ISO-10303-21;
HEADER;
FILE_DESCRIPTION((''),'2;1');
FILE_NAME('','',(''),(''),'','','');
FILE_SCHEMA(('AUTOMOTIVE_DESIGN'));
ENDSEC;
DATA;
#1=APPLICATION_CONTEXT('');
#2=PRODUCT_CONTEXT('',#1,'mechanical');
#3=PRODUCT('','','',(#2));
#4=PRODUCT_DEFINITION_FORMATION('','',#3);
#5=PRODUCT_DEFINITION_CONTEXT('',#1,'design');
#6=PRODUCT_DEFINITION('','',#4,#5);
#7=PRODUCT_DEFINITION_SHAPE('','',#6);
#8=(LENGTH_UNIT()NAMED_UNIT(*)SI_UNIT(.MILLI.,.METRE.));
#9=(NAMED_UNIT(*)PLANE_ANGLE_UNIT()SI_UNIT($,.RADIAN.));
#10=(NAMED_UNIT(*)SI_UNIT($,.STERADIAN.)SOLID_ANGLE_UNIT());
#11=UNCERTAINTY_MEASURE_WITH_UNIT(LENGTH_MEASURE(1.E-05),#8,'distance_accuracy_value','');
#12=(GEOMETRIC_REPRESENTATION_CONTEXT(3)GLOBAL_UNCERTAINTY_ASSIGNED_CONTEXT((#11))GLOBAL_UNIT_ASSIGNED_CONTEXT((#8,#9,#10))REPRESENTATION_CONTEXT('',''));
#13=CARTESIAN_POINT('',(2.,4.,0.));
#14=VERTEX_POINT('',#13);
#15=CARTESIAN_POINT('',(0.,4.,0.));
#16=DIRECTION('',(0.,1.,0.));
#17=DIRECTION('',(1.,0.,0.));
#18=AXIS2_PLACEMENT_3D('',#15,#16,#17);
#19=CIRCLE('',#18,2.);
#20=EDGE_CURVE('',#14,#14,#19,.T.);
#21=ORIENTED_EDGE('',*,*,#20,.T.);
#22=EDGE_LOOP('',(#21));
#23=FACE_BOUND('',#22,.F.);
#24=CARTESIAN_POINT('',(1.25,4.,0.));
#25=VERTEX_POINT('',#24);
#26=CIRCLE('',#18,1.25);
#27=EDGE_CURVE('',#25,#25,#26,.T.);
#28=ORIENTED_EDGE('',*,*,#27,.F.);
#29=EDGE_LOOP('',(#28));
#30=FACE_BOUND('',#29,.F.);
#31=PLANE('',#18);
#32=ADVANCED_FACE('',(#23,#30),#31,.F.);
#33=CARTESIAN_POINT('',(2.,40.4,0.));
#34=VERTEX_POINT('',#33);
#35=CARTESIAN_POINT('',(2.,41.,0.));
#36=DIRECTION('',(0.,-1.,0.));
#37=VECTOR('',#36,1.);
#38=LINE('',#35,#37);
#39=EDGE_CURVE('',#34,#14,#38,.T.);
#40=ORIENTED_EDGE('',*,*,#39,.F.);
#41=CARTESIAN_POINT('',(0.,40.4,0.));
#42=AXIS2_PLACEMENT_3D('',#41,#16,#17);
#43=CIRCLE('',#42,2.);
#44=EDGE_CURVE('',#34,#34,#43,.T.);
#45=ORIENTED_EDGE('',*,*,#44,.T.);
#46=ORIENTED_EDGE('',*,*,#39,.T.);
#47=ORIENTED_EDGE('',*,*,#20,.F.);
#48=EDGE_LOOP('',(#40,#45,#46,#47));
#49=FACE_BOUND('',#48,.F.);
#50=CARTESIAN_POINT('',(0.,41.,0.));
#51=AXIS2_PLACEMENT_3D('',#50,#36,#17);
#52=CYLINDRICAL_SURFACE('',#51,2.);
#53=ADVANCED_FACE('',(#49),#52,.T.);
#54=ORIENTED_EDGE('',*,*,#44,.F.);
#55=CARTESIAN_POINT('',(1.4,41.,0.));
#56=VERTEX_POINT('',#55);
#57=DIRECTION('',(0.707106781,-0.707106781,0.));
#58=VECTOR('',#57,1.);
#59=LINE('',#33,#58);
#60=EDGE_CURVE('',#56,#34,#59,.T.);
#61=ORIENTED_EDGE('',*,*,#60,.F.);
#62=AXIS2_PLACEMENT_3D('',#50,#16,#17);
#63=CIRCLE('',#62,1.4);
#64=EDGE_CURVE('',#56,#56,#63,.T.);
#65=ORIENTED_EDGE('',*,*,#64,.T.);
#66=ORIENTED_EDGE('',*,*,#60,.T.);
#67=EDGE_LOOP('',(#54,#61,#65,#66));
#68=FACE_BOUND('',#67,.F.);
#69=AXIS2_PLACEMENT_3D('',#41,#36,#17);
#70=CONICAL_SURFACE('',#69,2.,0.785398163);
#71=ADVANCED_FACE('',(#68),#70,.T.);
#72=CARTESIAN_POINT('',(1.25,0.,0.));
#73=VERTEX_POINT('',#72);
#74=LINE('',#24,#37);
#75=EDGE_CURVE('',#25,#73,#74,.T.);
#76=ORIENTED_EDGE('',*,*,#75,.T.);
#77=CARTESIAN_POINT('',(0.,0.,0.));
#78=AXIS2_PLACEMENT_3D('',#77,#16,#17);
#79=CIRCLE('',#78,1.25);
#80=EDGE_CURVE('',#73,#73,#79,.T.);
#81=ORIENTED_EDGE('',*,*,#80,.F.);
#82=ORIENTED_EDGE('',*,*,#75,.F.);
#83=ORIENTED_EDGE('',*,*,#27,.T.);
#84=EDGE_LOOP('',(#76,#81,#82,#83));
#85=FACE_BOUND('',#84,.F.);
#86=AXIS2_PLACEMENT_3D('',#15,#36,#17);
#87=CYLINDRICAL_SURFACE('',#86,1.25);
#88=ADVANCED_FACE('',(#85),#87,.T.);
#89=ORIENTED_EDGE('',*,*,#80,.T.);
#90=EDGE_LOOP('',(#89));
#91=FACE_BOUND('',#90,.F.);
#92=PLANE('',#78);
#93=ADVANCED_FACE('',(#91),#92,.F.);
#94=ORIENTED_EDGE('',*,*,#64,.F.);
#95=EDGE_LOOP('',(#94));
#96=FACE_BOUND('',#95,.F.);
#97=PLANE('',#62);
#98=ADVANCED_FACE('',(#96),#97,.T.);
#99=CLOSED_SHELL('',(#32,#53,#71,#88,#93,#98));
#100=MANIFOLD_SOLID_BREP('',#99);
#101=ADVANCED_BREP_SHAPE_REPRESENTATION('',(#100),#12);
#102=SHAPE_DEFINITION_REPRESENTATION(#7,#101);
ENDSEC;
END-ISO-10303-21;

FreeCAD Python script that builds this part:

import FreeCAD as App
import Part
import Sketcher
from FreeCAD import Vector


def edges_at(feature, points):
    """Names of the edges that pass closest to the given points."""
    edges = feature.Shape.Edges
    near = lambda p: min(range(len(edges)), key=lambda i: edges[i].distToShape(Part.Vertex(*p))[0])
    return sorted({f"Edge{near(p) + 1}" for p in points})


def add_polygon(sketch, points):
    """Adds a closed chain of lines whose ends are joined by coincident constraints."""
    first, n = sketch.GeometryCount, len(points)
    for a, b in zip(points, points[1:] + points[:1]):
        sketch.addGeometry(Part.LineSegment(App.Vector(*a, 0), App.Vector(*b, 0)), False)
    for i in range(n):
        sketch.addConstraint(Sketcher.Constraint("Coincident", first + i, 2, first + (i + 1) % n, 1))

doc = App.newDocument("Part")
body = doc.addObject("PartDesign::Body", "Body")

# Sketch on XY plane
sketch1 = doc.addObject("Sketcher::SketchObject", "Sketch")
body.addObject(sketch1)
sketch1.AttachmentSupport = (doc.XY_Plane, [""])
sketch1.MapMode = "FlatFace"
add_polygon(sketch1, [(0, 41), (0, 0), (1.2, 0), (1.2, 4), (2, 4), (2, 41)])  # lines 0-5
sketch1.addConstraint([
    Sketcher.Constraint("Vertical", 0),
    Sketcher.Constraint("Horizontal", 1),
    Sketcher.Constraint("Vertical", 2),
    Sketcher.Constraint("Horizontal", 3),
    Sketcher.Constraint("Vertical", 4),
    Sketcher.Constraint("Horizontal", 5),
    Sketcher.Constraint("Coincident", 0, 2, -1, 1),
    Sketcher.Constraint("DistanceY", 0, 2, 0, 1, 41.0),
    Sketcher.Constraint("DistanceY", 2, 1, 2, 2, 4.0),
    Sketcher.Constraint("DistanceX", 5, 2, 5, 1, 2.0),
    Sketcher.Constraint("DistanceX", 1, 1, 1, 2, 1.25),
])
revolution = doc.addObject("PartDesign::Revolution", "Revolution")
body.addObject(revolution)
revolution.Profile = sketch1
revolution.ReferenceAxis = (sketch1, ["V_Axis"])
revolution.Angle = 360
doc.recompute()

chamfer = doc.addObject("PartDesign::Chamfer", "Chamfer")
body.addObject(chamfer)
chamfer.Base = (revolution, edges_at(revolution, [(-2, 41, 0)]))
chamfer.Size = 0.6

doc.recompute()
